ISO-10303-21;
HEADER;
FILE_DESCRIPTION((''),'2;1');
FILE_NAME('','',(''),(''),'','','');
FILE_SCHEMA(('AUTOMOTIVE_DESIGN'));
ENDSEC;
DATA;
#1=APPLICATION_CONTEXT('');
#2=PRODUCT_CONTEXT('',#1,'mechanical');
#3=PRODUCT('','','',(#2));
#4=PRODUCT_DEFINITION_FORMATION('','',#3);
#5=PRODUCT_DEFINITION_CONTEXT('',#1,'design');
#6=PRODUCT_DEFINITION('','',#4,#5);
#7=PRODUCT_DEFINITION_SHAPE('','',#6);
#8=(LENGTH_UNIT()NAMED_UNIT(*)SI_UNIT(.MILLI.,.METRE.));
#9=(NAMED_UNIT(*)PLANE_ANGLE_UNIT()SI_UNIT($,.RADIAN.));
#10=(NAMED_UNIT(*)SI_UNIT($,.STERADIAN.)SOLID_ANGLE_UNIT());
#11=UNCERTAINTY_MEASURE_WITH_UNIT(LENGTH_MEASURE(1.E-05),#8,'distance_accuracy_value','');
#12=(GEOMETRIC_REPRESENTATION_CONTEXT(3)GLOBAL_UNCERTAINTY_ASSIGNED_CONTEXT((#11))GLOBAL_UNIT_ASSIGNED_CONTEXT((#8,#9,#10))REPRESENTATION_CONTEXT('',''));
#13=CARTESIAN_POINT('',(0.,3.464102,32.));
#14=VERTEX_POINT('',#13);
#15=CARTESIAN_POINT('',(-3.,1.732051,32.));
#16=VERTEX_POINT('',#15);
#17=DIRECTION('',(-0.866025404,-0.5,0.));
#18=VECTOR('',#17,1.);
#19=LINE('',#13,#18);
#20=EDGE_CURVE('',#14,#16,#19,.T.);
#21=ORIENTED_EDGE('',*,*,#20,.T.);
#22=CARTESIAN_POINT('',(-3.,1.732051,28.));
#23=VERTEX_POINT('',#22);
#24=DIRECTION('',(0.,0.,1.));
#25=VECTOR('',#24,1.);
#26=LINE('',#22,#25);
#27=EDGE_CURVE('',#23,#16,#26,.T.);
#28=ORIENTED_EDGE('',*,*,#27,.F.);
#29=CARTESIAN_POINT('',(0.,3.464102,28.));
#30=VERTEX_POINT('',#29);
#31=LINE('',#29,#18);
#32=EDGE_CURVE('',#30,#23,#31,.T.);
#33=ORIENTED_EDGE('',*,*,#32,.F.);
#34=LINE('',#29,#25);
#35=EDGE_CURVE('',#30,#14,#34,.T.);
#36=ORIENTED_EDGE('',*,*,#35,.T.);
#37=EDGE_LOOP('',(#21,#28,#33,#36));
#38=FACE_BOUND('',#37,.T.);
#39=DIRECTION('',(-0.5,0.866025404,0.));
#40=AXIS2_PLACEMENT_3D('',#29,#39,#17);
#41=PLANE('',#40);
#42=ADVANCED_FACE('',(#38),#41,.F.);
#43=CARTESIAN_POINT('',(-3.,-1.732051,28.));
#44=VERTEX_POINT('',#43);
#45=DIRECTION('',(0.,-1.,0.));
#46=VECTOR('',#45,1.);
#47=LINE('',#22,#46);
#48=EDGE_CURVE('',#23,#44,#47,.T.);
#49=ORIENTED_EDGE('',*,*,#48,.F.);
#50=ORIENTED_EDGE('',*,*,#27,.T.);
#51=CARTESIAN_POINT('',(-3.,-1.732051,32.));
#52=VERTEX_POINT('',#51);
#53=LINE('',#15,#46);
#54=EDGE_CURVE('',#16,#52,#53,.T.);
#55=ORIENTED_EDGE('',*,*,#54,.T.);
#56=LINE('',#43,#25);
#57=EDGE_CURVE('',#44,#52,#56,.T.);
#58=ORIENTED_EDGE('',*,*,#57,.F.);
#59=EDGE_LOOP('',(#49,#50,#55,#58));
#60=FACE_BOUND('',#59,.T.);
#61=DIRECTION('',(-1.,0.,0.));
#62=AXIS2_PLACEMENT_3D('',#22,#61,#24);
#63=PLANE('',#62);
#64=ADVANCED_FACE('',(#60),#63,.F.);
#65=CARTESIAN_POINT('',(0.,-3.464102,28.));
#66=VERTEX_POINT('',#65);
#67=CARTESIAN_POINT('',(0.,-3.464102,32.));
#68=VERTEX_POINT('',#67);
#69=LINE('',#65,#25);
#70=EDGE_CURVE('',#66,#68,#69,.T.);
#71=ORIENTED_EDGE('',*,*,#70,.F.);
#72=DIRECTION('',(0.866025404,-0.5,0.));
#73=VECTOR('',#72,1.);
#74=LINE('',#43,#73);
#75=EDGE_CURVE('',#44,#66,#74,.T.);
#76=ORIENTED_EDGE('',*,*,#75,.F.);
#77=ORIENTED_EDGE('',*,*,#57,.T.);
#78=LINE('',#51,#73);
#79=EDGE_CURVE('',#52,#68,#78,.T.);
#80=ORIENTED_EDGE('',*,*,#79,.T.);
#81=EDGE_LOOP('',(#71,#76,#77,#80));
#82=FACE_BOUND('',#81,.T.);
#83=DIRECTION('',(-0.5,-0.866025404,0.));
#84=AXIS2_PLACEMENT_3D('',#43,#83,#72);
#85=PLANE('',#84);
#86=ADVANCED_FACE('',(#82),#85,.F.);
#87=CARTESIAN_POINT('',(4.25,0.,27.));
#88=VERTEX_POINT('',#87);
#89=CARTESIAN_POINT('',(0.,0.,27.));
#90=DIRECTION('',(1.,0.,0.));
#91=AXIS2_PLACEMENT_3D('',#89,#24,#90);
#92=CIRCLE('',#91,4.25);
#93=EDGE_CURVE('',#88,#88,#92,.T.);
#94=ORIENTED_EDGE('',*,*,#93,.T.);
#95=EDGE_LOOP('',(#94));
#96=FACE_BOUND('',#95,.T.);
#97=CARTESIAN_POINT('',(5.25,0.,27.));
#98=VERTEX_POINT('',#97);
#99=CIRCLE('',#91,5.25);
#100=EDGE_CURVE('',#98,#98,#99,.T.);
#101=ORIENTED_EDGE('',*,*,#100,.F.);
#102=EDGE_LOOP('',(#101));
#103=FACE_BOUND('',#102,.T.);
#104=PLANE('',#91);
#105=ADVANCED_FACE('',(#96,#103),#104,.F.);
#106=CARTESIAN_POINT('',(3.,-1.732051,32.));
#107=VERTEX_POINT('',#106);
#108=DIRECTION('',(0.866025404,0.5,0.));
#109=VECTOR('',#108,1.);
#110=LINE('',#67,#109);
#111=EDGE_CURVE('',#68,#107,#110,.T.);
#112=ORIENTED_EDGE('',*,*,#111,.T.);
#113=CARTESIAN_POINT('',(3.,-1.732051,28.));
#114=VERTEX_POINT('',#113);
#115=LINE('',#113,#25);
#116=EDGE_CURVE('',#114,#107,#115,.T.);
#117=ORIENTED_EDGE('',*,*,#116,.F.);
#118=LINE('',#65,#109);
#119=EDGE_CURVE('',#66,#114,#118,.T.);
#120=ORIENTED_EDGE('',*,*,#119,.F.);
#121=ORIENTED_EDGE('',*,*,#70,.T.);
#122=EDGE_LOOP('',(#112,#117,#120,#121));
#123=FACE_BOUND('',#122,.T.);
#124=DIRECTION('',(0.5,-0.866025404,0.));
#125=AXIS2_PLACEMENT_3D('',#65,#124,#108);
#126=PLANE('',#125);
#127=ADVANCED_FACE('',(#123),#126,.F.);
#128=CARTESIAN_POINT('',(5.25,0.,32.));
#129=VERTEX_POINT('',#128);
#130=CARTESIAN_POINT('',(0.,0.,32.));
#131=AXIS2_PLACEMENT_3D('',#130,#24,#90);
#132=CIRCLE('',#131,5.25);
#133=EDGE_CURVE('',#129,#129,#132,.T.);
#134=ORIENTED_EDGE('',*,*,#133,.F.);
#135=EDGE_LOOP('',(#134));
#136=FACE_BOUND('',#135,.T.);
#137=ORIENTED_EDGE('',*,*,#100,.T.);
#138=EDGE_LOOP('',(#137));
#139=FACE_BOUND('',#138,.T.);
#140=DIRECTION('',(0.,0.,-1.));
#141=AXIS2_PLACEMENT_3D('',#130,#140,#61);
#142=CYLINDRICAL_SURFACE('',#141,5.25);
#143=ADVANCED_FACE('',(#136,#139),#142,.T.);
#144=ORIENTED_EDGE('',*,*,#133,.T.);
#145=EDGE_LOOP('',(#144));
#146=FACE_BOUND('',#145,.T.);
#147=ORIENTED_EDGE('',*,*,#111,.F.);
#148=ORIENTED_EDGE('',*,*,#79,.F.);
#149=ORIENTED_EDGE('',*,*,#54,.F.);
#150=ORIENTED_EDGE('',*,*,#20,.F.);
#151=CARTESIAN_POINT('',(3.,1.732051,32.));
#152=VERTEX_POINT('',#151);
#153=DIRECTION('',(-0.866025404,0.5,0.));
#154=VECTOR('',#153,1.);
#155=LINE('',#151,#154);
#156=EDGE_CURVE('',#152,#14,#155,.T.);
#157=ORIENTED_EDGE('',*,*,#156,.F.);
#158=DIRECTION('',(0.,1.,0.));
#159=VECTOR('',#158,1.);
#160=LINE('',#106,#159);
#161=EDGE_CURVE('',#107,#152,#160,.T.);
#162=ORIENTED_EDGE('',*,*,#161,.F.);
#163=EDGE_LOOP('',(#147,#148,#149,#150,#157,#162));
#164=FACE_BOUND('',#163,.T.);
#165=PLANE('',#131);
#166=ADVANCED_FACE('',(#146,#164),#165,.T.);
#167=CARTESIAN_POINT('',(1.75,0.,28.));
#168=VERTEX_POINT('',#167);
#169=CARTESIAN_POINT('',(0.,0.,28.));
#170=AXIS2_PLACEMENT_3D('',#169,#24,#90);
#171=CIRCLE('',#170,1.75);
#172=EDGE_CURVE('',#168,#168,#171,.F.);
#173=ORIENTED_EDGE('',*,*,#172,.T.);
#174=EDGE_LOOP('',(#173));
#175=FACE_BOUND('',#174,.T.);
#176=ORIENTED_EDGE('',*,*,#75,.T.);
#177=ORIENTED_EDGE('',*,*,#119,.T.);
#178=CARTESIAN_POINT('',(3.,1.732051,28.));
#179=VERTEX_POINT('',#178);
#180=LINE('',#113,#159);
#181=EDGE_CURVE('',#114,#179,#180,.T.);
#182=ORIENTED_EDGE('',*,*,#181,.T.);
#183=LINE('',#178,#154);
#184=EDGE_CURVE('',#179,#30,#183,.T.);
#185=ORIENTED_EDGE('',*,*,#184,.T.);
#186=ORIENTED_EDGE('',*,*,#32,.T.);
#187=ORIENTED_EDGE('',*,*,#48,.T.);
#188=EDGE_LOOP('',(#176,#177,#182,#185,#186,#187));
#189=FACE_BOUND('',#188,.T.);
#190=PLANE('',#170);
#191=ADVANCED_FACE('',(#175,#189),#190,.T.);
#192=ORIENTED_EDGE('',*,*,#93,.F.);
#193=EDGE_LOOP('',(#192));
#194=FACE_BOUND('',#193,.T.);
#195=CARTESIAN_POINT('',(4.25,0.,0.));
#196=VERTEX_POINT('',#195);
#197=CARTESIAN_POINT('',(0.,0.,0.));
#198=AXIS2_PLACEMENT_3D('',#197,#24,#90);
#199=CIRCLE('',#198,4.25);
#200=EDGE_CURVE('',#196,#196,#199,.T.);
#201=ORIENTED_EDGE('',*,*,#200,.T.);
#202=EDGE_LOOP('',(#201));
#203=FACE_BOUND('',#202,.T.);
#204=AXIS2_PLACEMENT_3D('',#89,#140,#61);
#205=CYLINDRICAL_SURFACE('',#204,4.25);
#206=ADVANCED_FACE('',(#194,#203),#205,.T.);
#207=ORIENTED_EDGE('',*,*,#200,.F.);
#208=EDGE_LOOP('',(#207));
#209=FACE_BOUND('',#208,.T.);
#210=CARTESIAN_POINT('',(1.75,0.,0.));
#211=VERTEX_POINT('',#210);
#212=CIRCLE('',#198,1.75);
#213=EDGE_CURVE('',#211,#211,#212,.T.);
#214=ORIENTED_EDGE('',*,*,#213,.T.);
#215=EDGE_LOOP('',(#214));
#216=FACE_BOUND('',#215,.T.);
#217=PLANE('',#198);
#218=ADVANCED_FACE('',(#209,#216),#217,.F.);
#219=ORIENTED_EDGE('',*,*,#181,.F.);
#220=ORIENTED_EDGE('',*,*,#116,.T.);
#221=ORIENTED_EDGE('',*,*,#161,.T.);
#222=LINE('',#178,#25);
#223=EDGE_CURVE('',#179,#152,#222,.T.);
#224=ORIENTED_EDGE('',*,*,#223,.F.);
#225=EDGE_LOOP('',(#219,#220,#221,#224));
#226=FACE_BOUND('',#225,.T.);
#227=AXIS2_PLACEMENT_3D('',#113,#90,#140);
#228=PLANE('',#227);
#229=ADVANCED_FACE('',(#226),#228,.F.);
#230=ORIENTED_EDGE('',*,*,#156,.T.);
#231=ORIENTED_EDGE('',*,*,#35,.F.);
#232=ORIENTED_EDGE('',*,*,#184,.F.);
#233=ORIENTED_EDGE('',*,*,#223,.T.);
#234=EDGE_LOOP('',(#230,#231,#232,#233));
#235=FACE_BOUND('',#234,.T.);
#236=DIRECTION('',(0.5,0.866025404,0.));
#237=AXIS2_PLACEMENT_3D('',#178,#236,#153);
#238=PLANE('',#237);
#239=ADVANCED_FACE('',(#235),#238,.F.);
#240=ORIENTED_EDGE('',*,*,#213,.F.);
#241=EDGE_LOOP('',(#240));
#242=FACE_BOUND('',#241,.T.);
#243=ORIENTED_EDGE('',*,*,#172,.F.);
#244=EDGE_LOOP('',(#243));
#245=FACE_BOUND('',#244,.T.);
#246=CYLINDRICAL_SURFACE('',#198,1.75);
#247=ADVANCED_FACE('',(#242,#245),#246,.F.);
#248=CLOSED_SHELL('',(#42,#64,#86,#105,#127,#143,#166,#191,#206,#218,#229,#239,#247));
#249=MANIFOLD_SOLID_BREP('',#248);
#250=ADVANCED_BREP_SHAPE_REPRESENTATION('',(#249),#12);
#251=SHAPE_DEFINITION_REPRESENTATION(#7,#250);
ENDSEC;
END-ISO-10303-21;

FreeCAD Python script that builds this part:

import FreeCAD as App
import Part
import Sketcher

V = App.Vector
Q = App.Units.Quantity

doc = App.newDocument("Part")
body = doc.addObject("PartDesign::Body", "Body")

# Sketch on XY plane
sketch1 = body.newObject("Sketcher::SketchObject", "Sketch")
sketch1.AttachmentSupport = (doc.getObject("XY_Plane"), [""])
sketch1.MapMode = "FlatFace"
sketch1.addGeometry(Part.Circle(V(0, 0, 0), V(0, 0, 1), 4.2), False)
sketch1.addConstraint([
    Sketcher.Constraint("Coincident", 0, 3, -1, 1),
    Sketcher.Constraint("Diameter", 0, Q("8.5 mm")),
])
pad1 = body.newObject("PartDesign::Pad", "Pad")
pad1.Profile = sketch1
pad1.Length = 27

# Sketch on XY plane
sketch2 = body.newObject("Sketcher::SketchObject", "Sketch001")
sketch2.AttachmentSupport = (doc.getObject("XY_Plane"), [""])
sketch2.MapMode = "FlatFace"
sketch2.AttachmentOffset = App.Placement(V(0, 0, 27), App.Rotation())
sketch2.addGeometry(Part.Circle(V(0, 0, 0), V(0, 0, 1), 5), False)
sketch2.addConstraint([
    Sketcher.Constraint("Coincident", 0, 3, -1, 1),
    Sketcher.Constraint("Diameter", 0, Q("10.5 mm")),
])
pad2 = body.newObject("PartDesign::Pad", "Pad001")
pad2.Profile = sketch2
pad2.Length = 5

# Sketch on XY plane
sketch3 = body.newObject("Sketcher::SketchObject", "Sketch002")
sketch3.AttachmentSupport = (doc.getObject("XY_Plane"), [""])
sketch3.MapMode = "FlatFace"
sketch3.AttachmentOffset = App.Placement(V(0, 0, 32), App.Rotation())
sketch3.addGeometry(Part.Circle(V(0, 0, 0), V(0, 0, 1), 1.8), False)
sketch3.addConstraint([
    Sketcher.Constraint("Coincident", 0, 3, -1, 1),
    Sketcher.Constraint("Diameter", 0, Q("3.5 mm")),
])
pocket1 = body.newObject("PartDesign::Pocket", "Pocket")
pocket1.Profile = sketch3
pocket1.Type = "ThroughAll"

# Sketch on XY plane
sketch4 = body.newObject("Sketcher::SketchObject", "Sketch003")
sketch4.AttachmentSupport = (doc.getObject("XY_Plane"), [""])
sketch4.MapMode = "FlatFace"
sketch4.AttachmentOffset = App.Placement(V(0, 0, 32), App.Rotation())
sketch4.addGeometry([
    Part.LineSegment(V(0, 3.5, 0), V(-3, 1.7, 0)),  # 0
    Part.LineSegment(V(-3, 1.7, 0), V(-3, -1.7, 0)),  # 1
    Part.LineSegment(V(-3, -1.7, 0), V(0, -3.5, 0)),  # 2
    Part.LineSegment(V(0, -3.5, 0), V(3, -1.7, 0)),  # 3
    Part.LineSegment(V(3, -1.7, 0), V(3, 1.7, 0)),  # 4
    Part.LineSegment(V(3, 1.7, 0), V(0, 3.5, 0)),  # 5
], False)
sketch4.addConstraint([
    Sketcher.Constraint("Coincident", 0, 2, 1, 1),
    Sketcher.Constraint("Coincident", 1, 2, 2, 1),
    Sketcher.Constraint("Coincident", 2, 2, 3, 1),
    Sketcher.Constraint("Coincident", 3, 2, 4, 1),
    Sketcher.Constraint("Coincident", 4, 2, 5, 1),
    Sketcher.Constraint("Coincident", 5, 2, 0, 1),
    Sketcher.Constraint("Vertical", 1),
    Sketcher.Constraint("Vertical", 4),
    Sketcher.Constraint("Symmetric", 0, 2, 3, 2, -1, 1),
    Sketcher.Constraint("Symmetric", 2, 2, 5, 2, -1, 1),
    Sketcher.Constraint("PointOnObject", 2, 2, -2),
    Sketcher.Constraint("Parallel", 2, 5),
    Sketcher.Constraint("Horizontal", 1, 2, 3, 2),
    Sketcher.Constraint("Angle", 0, Q("-150 deg")),
    Sketcher.Constraint("DistanceX", 0, 2, -1, 1, Q("3 mm")),
    Sketcher.Constraint("DistanceY", 1, 2, 1, 1, Q("3.464102 mm")),
])
pocket2 = body.newObject("PartDesign::Pocket", "Pocket001")
pocket2.Profile = sketch4
pocket2.Length = 4

doc.recompute()
